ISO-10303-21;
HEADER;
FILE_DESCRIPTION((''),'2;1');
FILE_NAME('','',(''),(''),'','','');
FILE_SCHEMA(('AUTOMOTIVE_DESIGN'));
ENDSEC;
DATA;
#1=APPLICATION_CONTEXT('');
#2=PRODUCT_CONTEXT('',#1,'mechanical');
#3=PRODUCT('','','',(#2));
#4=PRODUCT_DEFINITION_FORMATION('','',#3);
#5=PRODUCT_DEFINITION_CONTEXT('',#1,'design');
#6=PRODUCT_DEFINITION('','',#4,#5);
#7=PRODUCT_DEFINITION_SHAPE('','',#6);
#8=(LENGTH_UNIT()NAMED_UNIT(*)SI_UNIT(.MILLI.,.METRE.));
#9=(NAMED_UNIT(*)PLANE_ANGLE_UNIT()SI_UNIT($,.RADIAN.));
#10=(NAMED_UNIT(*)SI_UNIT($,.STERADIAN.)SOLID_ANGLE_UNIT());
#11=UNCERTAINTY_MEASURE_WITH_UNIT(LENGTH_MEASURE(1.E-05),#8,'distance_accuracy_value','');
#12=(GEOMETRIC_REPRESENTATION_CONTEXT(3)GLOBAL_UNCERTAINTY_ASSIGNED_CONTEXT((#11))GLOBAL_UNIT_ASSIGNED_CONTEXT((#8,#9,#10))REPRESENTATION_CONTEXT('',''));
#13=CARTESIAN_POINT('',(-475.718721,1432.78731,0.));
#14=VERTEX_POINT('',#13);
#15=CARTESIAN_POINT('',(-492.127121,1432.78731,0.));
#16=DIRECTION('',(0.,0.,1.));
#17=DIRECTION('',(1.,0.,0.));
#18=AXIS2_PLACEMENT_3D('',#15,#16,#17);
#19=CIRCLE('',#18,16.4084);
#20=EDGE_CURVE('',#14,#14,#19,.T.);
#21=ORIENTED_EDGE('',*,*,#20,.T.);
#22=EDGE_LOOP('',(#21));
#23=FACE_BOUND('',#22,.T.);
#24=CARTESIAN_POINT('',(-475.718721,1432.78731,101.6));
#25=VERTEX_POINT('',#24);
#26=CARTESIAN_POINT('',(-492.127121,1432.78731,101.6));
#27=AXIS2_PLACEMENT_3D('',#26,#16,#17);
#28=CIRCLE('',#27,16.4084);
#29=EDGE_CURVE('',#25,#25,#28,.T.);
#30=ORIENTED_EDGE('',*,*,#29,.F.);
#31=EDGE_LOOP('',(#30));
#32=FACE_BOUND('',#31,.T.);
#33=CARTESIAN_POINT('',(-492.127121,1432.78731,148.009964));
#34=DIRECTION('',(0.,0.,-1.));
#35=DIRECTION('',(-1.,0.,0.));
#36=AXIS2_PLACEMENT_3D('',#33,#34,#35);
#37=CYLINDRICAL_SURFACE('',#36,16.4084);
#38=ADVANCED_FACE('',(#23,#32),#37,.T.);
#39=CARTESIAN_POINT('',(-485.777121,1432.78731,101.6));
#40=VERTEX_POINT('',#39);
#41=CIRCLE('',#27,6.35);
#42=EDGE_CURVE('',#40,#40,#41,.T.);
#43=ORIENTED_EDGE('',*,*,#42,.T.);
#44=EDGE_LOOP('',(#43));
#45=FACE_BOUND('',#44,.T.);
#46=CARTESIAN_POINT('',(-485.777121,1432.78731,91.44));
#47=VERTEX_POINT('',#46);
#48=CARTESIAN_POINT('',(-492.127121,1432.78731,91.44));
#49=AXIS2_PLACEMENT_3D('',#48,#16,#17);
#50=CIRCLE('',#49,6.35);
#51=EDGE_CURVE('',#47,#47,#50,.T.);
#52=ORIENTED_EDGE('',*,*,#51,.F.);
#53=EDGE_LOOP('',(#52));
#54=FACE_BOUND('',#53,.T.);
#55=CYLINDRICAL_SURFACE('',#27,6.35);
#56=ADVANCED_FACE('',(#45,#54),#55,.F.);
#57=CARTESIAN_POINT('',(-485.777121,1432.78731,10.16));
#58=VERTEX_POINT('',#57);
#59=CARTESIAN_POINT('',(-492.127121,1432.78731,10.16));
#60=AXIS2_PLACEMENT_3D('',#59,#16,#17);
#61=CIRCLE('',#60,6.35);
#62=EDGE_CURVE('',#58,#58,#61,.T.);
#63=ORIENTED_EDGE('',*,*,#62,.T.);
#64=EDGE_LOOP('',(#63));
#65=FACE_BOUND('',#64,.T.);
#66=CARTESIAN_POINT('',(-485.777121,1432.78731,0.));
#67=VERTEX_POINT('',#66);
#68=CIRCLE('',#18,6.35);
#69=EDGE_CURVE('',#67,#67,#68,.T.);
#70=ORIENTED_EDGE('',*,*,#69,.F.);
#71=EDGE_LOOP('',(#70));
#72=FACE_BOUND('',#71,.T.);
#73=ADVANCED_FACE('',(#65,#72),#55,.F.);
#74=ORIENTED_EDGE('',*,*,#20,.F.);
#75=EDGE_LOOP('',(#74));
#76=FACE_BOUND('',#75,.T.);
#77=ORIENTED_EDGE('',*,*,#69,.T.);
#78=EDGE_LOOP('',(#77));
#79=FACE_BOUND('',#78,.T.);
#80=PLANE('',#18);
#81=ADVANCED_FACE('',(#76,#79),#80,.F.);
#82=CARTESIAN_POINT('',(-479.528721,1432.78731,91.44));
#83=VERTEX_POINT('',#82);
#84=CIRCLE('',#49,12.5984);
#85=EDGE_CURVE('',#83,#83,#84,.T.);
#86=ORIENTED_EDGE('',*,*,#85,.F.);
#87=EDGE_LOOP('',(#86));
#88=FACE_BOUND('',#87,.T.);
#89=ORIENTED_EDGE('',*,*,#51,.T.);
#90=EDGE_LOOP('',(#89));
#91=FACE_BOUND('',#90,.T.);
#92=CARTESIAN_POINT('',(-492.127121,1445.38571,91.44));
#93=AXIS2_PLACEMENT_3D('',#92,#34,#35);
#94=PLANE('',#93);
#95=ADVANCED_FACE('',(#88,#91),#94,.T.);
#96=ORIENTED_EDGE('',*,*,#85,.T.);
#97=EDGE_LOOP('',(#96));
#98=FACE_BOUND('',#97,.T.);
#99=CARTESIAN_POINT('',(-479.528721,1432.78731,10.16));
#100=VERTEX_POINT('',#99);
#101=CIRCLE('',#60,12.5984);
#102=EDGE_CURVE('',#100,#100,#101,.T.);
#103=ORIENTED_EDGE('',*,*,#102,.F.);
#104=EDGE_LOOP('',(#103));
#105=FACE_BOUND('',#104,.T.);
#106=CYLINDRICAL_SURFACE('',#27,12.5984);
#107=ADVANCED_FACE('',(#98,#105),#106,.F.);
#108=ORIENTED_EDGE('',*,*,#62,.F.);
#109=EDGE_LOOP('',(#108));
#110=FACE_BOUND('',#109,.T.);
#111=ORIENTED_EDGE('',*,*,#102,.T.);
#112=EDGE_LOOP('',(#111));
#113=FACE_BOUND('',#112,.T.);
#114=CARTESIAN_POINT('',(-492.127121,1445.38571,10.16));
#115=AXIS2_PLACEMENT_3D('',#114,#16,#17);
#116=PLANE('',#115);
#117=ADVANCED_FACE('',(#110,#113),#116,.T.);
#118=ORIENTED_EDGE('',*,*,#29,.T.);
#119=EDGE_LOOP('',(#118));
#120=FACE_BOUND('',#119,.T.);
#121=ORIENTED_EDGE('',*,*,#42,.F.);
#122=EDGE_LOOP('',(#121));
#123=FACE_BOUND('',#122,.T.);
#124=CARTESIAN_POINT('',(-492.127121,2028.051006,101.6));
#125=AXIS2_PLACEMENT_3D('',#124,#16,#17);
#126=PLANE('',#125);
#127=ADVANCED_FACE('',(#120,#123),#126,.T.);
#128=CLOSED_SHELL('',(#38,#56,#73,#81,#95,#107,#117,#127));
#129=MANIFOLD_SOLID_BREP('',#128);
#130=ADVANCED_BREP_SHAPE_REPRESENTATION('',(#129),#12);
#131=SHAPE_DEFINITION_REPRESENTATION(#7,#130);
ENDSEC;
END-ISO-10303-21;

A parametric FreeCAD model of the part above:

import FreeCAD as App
import Part
import Sketcher

V = App.Vector
Q = App.Units.Quantity


def add_polygon(sketch, points):
    """Adds a closed chain of lines whose ends are joined by coincident constraints."""
    first, n = sketch.GeometryCount, len(points)
    for a, b in zip(points, points[1:] + points[:1]):
        sketch.addGeometry(Part.LineSegment(App.Vector(*a, 0), App.Vector(*b, 0)), False)
    for i in range(n):
        sketch.addConstraint(Sketcher.Constraint("Coincident", first + i, 2, first + (i + 1) % n, 1))

doc = App.newDocument("Part")
body = doc.addObject("PartDesign::Body", "Body")

sketch1 = body.newObject("Sketcher::SketchObject", "Sketch")
sketch1.AttachmentSupport = (doc.getObject("XY_Plane"), [""])
sketch1.MapMode = "FlatFace"
sketch1.addGeometry(Part.Circle(V(-492, 1433, 0), V(0, 0, 1), 16), False)
sketch1.addConstraint([
    Sketcher.Constraint("Diameter", 0, Q("1.292 in")),
    Sketcher.Constraint("DistanceX", 0, 3, -1, 1, 492.127121),
    Sketcher.Constraint("DistanceY", -1, 1, 0, 3, 1432.78731),
])
pad1 = body.newObject("PartDesign::Pad", "Pad")
pad1.Profile = sketch1
pad1.Length = Q("4 in")

sketch2 = body.newObject("Sketcher::SketchObject", "Sketch001")
sketch2.AttachmentSupport = (doc.getObject("YZ_Plane"), [""])
sketch2.MapMode = "FlatFace"
sketch2.AttachmentOffset = App.Placement(V(0, 0, -492.127121), App.Rotation())
add_polygon(sketch2, [(1445, 10), (1445, 91), (1439, 91), (1439, 102), (1433, 102), (1433, 0), (1439, 0), (1439, 10)])
sketch2.addGeometry(Part.LineSegment(V(1433, 102, 0), V(1433, 0, 0)), True)
sketch2.addConstraint([
    Sketcher.Constraint("Vertical", 0),
    Sketcher.Constraint("Horizontal", 1),
    Sketcher.Constraint("Vertical", 2),
    Sketcher.Constraint("Horizontal", 3),
    Sketcher.Constraint("Vertical", 4),
    Sketcher.Constraint("Horizontal", 5),
    Sketcher.Constraint("Vertical", 6),
    Sketcher.Constraint("Horizontal", 7),
    Sketcher.Constraint("Vertical", 8),
    Sketcher.Constraint("Coincident", 8, 1, 3, 2),
    Sketcher.Constraint("PointOnObject", 4, 2, -1),
    Sketcher.Constraint("PointOnObject", 8, 2, -1),
    Sketcher.Constraint("Vertical", 2, 2, 5, 2),
    Sketcher.Constraint("Equal", 2, 6),
    Sketcher.Constraint("DistanceY", 4, 2, 4, 1, Q("4 in")),
    Sketcher.Constraint("DistanceY", 0, 1, 0, 2, Q("3.2 in")),
    Sketcher.Constraint("DistanceX", 3, 2, 3, 1, Q("0.25 in")),
    Sketcher.Constraint("DistanceX", 1, 2, 1, 1, Q("0.246 in")),
    Sketcher.Constraint("DistanceX", -1, 1, 0, 2, 1445.38571),
])
groove = body.newObject("PartDesign::Groove", "Groove")
groove.Profile = sketch2
groove.ReferenceAxis = (sketch2, ["Axis0"])
groove.Angle = 360

doc.recompute()
